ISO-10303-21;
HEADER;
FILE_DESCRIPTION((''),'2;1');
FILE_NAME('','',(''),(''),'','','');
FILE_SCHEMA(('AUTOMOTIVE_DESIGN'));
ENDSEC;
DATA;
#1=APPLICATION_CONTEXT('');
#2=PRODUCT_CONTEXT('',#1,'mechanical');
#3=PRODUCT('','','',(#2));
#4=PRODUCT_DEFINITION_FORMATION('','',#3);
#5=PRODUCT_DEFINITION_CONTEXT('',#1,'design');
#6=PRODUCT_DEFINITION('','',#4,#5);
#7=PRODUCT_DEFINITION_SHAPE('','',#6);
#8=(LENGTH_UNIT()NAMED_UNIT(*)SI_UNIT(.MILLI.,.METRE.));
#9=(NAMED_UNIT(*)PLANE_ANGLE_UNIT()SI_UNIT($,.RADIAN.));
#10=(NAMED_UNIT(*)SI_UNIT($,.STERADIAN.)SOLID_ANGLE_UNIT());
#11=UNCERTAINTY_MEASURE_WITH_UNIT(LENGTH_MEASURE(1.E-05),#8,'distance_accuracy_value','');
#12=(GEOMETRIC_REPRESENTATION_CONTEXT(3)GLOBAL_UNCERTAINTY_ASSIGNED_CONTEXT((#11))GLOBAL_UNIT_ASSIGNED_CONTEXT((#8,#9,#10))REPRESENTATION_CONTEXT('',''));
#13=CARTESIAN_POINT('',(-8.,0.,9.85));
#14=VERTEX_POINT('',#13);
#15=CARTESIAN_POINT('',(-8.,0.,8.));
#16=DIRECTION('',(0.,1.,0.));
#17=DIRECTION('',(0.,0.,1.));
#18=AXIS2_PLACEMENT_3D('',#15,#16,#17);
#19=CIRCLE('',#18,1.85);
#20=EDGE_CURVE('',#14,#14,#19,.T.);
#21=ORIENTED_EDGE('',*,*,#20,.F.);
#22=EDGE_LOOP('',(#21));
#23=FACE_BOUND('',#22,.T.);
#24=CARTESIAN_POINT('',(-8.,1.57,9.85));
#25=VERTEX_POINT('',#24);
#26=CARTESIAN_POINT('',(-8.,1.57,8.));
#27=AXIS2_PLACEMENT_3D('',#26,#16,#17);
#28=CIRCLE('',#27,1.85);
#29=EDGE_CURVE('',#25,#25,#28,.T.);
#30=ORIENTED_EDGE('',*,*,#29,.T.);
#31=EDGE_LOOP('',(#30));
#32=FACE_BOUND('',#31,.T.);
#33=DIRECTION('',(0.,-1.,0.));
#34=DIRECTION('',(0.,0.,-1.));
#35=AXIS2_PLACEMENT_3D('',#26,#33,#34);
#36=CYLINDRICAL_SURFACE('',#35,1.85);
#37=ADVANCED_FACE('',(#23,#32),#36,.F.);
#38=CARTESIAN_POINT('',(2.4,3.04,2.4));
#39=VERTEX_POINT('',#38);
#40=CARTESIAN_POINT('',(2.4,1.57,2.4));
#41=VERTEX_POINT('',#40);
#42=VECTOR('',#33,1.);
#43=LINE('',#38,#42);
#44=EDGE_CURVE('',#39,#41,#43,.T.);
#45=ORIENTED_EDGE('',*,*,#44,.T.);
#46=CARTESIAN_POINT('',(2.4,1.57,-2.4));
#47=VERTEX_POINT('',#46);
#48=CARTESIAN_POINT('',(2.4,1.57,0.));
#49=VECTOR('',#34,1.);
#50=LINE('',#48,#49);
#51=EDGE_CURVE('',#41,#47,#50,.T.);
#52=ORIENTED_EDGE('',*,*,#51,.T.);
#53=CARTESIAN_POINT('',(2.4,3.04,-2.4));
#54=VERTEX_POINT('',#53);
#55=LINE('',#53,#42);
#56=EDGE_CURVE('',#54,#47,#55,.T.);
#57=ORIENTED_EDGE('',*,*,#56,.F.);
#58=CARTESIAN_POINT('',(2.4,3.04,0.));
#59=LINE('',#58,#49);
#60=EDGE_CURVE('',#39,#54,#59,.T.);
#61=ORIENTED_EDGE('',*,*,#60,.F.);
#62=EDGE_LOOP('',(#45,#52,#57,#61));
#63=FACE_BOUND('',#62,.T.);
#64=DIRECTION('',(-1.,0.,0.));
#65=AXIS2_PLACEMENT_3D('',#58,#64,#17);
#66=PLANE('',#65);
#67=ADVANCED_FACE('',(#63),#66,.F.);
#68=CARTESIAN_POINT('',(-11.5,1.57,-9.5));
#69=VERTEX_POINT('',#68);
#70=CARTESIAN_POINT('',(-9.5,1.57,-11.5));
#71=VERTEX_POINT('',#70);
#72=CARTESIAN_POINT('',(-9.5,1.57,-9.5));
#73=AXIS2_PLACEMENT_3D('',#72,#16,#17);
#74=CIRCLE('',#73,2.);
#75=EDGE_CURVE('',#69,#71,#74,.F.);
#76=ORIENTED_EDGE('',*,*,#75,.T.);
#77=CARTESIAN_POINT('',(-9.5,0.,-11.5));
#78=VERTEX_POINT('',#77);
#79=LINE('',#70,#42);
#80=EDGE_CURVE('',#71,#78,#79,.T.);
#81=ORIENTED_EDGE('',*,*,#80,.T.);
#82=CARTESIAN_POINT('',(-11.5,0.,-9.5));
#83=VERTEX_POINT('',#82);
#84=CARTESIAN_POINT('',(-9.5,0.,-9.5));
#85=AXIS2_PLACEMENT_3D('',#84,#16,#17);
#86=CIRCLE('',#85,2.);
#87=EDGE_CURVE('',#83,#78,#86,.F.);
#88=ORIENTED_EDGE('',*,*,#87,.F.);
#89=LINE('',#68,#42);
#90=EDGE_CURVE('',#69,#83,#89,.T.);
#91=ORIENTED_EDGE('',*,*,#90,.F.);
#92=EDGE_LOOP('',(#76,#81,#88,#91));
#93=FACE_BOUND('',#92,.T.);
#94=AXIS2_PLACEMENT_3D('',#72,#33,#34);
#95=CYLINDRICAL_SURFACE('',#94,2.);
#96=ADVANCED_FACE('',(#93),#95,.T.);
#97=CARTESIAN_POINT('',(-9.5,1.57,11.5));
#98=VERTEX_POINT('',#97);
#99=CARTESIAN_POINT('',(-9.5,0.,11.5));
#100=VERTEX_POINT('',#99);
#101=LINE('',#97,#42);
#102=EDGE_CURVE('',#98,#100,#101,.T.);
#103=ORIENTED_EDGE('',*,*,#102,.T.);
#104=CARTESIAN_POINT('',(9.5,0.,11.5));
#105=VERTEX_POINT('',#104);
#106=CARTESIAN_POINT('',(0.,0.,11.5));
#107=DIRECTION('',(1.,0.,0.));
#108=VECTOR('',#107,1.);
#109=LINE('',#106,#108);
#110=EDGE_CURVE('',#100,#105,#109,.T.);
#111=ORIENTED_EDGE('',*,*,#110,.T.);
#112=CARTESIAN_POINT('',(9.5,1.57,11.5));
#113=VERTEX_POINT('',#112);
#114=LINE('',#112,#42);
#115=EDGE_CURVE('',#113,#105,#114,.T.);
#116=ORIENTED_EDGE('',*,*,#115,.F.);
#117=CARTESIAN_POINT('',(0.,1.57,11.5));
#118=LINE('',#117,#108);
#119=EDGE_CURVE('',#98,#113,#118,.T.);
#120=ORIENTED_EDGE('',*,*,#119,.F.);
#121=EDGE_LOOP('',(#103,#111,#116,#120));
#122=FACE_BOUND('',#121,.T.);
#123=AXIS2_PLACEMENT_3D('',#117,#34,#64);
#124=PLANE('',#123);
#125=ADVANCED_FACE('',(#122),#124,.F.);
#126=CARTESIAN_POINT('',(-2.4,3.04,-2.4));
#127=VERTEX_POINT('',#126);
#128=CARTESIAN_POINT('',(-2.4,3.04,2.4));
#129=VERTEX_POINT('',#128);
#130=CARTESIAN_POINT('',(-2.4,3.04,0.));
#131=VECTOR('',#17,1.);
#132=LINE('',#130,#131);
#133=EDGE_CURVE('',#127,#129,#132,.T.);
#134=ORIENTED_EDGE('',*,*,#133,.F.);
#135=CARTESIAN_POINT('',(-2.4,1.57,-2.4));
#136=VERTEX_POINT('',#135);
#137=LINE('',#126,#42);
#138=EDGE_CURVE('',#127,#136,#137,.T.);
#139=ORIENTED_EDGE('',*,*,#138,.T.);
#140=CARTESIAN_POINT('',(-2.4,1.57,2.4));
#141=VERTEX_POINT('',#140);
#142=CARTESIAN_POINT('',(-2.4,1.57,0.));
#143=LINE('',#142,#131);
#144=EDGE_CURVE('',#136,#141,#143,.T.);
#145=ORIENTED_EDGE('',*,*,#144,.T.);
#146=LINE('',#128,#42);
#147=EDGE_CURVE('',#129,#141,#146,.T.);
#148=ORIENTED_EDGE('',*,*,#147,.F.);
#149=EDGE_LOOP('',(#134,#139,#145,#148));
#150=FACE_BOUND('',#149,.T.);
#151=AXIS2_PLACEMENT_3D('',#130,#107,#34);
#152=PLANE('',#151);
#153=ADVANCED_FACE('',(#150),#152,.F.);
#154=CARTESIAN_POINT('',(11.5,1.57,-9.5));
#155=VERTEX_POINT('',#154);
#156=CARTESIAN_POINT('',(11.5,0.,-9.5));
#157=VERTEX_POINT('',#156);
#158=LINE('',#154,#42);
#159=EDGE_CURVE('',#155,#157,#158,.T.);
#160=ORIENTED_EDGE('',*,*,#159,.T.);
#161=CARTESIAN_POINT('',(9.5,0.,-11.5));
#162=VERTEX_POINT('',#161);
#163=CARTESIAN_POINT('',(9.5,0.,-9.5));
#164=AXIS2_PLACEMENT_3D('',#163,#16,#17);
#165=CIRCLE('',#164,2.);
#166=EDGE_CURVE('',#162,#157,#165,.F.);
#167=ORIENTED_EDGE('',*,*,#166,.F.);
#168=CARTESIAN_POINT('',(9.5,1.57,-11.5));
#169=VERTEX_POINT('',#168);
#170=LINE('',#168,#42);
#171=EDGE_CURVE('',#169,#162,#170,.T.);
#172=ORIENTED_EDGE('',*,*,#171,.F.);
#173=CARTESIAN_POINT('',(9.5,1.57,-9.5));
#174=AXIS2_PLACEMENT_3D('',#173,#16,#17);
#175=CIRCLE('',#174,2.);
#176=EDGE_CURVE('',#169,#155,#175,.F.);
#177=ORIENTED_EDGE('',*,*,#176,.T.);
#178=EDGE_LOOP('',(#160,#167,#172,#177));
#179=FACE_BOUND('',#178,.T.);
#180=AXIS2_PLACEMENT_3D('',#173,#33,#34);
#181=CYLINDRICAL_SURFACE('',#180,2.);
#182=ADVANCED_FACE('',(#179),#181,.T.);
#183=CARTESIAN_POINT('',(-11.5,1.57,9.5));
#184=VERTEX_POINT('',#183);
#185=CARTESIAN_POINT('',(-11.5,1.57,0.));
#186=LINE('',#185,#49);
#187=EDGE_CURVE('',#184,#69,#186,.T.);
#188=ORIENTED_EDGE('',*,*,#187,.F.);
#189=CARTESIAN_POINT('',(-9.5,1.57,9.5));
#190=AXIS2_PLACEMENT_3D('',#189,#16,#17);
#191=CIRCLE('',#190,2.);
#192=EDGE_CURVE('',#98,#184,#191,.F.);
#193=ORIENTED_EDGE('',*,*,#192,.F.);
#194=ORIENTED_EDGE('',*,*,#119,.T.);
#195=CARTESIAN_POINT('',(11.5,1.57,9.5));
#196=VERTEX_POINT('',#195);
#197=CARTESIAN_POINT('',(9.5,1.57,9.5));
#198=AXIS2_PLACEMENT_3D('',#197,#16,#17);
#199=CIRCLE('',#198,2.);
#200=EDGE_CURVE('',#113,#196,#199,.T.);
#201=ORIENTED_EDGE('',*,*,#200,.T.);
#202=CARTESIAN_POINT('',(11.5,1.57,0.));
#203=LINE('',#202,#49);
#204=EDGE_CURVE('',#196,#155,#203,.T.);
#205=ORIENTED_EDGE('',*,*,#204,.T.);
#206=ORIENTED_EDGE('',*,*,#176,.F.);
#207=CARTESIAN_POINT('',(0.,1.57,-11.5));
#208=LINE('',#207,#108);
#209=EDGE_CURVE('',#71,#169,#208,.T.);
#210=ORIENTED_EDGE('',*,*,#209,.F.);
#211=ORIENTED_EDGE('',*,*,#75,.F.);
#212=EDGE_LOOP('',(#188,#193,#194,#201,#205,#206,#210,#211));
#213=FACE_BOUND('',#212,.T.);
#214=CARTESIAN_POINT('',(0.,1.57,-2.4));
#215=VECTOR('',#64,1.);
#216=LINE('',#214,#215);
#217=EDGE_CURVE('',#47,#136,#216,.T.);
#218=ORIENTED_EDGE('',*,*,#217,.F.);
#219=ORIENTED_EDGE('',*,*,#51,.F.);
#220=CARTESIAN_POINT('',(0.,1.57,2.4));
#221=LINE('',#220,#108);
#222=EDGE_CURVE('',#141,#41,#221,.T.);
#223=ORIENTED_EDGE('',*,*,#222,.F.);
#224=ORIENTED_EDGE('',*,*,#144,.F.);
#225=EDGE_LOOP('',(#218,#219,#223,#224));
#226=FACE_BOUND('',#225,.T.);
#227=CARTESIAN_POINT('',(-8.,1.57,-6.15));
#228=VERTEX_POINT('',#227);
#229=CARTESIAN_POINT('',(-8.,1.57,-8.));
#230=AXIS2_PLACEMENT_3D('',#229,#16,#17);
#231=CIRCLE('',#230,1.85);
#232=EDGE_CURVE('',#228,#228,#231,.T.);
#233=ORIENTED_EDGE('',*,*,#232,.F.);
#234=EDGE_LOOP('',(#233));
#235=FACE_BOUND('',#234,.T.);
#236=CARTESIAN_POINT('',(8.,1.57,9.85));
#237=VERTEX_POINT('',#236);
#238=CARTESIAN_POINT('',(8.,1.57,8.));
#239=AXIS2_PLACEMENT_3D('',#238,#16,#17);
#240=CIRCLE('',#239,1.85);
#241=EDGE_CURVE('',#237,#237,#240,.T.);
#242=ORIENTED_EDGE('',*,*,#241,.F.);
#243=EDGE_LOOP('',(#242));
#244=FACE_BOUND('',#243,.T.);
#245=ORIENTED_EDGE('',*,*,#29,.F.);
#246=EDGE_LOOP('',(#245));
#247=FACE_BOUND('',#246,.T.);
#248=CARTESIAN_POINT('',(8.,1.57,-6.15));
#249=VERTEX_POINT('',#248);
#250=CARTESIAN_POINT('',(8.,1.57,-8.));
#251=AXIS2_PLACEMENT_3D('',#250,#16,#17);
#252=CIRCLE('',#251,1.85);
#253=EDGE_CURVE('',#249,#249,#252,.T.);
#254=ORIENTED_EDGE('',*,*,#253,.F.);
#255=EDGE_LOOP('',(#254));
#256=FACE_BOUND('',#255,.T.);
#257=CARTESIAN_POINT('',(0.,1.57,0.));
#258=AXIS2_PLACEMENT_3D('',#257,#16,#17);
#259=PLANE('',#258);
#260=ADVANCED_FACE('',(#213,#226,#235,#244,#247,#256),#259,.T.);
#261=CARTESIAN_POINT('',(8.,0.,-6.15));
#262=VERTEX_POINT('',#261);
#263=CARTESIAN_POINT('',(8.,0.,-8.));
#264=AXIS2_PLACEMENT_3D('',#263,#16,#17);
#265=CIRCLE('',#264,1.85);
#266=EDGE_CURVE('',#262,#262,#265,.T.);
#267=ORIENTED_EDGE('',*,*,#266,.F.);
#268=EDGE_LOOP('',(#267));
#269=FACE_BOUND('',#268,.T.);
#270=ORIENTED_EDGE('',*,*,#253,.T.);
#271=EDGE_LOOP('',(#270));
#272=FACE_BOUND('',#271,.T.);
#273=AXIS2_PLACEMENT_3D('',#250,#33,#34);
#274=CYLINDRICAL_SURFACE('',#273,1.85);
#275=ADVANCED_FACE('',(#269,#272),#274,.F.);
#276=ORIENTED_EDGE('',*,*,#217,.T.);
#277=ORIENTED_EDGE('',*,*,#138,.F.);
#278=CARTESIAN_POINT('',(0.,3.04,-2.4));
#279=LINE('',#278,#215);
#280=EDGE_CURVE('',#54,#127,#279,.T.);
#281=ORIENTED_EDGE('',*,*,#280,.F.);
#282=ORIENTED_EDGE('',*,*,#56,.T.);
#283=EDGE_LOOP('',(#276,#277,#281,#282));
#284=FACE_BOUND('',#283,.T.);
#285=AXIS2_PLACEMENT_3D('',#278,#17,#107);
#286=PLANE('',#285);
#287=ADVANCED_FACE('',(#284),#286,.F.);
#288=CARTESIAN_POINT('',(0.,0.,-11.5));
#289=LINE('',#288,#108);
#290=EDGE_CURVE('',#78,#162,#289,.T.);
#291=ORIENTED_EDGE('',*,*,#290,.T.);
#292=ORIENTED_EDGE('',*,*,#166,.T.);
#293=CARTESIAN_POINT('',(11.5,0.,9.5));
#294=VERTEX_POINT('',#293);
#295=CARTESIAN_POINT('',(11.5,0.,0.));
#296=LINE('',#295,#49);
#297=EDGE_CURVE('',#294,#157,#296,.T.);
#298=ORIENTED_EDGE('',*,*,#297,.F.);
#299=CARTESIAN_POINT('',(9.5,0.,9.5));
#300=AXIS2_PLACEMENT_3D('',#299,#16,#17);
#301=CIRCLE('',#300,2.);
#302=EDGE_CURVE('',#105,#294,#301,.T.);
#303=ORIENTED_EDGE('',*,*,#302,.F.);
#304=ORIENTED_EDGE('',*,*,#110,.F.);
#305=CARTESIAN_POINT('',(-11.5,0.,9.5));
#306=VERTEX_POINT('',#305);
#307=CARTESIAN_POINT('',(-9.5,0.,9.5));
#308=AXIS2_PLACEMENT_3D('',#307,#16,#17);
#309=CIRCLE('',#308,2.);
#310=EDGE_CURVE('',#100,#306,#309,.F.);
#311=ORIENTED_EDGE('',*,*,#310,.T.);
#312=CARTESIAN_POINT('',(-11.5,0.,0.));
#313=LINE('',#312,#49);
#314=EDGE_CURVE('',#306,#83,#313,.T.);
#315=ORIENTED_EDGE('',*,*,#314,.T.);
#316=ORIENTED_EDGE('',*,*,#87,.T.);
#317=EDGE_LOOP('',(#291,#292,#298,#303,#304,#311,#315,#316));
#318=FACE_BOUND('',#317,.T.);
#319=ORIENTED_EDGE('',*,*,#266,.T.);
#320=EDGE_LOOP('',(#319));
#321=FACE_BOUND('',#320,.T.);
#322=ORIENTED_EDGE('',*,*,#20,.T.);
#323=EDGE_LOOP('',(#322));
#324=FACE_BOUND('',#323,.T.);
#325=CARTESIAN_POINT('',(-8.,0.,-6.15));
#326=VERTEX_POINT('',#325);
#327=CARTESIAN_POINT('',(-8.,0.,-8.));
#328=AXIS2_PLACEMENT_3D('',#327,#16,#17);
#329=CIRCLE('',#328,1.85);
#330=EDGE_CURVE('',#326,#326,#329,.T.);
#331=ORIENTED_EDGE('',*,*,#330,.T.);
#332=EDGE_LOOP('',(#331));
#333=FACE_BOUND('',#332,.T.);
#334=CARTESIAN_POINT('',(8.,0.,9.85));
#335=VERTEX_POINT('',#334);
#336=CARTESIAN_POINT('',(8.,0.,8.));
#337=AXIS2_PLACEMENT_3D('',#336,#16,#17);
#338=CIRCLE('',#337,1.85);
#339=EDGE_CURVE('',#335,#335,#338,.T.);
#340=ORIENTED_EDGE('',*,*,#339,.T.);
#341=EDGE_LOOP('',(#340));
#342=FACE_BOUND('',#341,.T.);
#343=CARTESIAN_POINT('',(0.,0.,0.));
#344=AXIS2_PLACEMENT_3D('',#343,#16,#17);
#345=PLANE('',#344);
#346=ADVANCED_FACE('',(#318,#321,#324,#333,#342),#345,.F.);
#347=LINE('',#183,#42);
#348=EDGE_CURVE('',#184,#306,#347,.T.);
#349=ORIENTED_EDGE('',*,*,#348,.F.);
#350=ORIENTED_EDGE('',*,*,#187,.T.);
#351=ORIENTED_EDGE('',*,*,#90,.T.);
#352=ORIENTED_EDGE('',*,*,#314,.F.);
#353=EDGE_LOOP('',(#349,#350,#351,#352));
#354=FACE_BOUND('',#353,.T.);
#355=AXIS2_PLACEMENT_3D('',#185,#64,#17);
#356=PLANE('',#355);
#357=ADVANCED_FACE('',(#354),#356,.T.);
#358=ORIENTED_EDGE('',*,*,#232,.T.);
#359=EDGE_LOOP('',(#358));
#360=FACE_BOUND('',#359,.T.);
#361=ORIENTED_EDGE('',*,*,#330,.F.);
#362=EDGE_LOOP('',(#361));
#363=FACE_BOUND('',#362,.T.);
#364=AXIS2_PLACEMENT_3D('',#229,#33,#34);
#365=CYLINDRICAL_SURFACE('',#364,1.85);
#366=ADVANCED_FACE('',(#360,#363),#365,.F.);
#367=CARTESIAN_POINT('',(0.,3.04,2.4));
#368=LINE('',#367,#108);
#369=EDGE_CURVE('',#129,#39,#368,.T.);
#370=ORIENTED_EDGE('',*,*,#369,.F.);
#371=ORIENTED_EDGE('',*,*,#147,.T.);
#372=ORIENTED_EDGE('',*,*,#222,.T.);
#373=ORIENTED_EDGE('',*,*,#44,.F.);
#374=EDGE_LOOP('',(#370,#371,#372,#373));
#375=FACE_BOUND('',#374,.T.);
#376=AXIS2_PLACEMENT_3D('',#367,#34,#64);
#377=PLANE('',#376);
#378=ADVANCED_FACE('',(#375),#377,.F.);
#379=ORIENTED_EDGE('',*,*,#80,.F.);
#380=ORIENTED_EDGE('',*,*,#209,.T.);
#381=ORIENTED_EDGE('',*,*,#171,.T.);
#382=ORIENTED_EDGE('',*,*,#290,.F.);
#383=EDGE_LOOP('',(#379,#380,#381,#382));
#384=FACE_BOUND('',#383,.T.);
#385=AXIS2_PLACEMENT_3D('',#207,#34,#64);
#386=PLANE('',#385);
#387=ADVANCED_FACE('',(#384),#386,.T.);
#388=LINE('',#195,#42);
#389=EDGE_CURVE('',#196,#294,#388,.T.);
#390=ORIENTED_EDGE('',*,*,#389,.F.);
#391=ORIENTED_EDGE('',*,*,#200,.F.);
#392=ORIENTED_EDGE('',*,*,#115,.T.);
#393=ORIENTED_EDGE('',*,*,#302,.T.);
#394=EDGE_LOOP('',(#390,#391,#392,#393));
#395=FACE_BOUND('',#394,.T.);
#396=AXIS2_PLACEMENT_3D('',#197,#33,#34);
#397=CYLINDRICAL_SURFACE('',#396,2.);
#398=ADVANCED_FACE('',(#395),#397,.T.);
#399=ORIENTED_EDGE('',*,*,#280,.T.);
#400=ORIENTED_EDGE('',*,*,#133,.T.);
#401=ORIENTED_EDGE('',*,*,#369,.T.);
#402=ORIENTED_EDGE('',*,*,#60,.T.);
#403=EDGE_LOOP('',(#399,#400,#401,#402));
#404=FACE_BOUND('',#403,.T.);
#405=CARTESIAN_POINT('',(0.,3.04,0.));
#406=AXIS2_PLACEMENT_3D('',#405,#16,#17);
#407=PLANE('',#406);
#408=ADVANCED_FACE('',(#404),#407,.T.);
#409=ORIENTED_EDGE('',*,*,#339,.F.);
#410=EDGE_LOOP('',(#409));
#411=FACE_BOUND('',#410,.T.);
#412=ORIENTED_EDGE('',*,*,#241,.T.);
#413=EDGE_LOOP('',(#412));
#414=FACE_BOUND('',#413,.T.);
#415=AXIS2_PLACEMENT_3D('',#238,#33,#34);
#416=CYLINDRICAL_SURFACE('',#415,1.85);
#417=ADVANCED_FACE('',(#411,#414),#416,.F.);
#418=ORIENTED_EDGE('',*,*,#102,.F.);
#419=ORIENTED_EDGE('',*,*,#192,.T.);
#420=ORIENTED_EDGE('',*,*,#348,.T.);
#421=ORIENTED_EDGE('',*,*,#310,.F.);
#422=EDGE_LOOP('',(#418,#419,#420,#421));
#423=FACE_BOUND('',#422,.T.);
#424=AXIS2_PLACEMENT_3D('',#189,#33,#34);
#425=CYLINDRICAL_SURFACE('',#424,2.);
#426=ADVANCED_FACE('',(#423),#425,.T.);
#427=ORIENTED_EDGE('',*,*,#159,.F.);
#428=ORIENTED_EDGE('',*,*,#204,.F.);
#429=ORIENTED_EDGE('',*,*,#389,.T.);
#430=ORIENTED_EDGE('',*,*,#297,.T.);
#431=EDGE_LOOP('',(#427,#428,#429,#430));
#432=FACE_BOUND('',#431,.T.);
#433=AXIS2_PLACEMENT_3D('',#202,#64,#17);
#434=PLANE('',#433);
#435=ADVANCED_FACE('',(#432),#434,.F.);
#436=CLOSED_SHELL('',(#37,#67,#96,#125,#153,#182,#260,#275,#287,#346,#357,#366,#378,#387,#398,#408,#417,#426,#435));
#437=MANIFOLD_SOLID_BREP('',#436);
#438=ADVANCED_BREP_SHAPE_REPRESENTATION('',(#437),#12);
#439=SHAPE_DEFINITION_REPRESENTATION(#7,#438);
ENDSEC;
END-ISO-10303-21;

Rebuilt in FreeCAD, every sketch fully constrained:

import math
import FreeCAD as App
import Part
import Sketcher

V = App.Vector


def add_polygon(sketch, points):
    """Adds a closed chain of lines whose ends are joined by coincident constraints."""
    first, n = sketch.GeometryCount, len(points)
    for a, b in zip(points, points[1:] + points[:1]):
        sketch.addGeometry(Part.LineSegment(App.Vector(*a, 0), App.Vector(*b, 0)), False)
    for i in range(n):
        sketch.addConstraint(Sketcher.Constraint("Coincident", first + i, 2, first + (i + 1) % n, 1))

doc = App.newDocument("Part")
body = doc.addObject("PartDesign::Body", "Body")

sketch1 = body.newObject("Sketcher::SketchObject", "Sketch")
sketch1.AttachmentSupport = (doc.getObject("XZ_Plane"), [""])
sketch1.MapMode = "FlatFace"
sketch1.addGeometry([
    Part.ArcOfCircle(Part.Circle(V(-9.5, -9.5, 0), V(0, 0, 1), 2), math.radians(-180), math.radians(-90)),
    Part.LineSegment(V(-11.5, -9.5, 0), V(-11.5, 9.5, 0)),
    Part.ArcOfCircle(Part.Circle(V(-9.5, 9.5, 0), V(0, 0, 1), 2), math.radians(90), math.radians(180)),
    Part.LineSegment(V(-9.5, 11.5, 0), V(9.5, 11.5, 0)),
    Part.ArcOfCircle(Part.Circle(V(9.5, 9.5, 0), V(0, 0, 1), 2), math.radians(0), math.radians(90)),
    Part.LineSegment(V(11.5, 9.5, 0), V(11.5, -9.5, 0)),
    Part.ArcOfCircle(Part.Circle(V(9.5, -9.5, 0), V(0, 0, 1), 2), math.radians(-90), math.radians(0)),
    Part.LineSegment(V(9.5, -11.5, 0), V(-9.5, -11.5, 0)),
    Part.Circle(V(8, 8, 0), V(0, 0, 1), 1.9),
    Part.Circle(V(-8, 8, 0), V(0, 0, 1), 1.9),
    Part.Circle(V(8, -8, 0), V(0, 0, 1), 1.9),
    Part.Circle(V(-8, -8, 0), V(0, 0, 1), 1.9),
], False)
sketch1.addConstraint([
    Sketcher.Constraint("Tangent", 0, 1, 1, 1),
    Sketcher.Constraint("Tangent", 1, 2, 2, 2),
    Sketcher.Constraint("Tangent", 2, 1, 3, 1),
    Sketcher.Constraint("Tangent", 3, 2, 4, 2),
    Sketcher.Constraint("Tangent", 4, 1, 5, 1),
    Sketcher.Constraint("Tangent", 5, 2, 6, 2),
    Sketcher.Constraint("Tangent", 6, 1, 7, 1),
    Sketcher.Constraint("Tangent", 7, 2, 0, 2),
    Sketcher.Constraint("Vertical", 1),
    Sketcher.Constraint("Horizontal", 3),
    Sketcher.Constraint("Vertical", 5),
    Sketcher.Constraint("Horizontal", 7),
    Sketcher.Constraint("Equal", 0, 2),
    Sketcher.Constraint("Equal", 2, 4),
    Sketcher.Constraint("Equal", 4, 6),
    Sketcher.Constraint("Equal", 8, 9),
    Sketcher.Constraint("Equal", 9, 10),
    Sketcher.Constraint("Equal", 10, 11),
    Sketcher.Constraint("Symmetric", 0, 3, 4, 3, -1, 1),
    Sketcher.Constraint("Symmetric", 9, 3, 10, 3, -1, 1),
    Sketcher.Constraint("Symmetric", 8, 3, 11, 3, -1, 1),
    Sketcher.Constraint("Symmetric", 8, 3, 9, 3, -2),
    Sketcher.Constraint("Equal", 7, 1),
    Sketcher.Constraint("Radius", 0, 2.0),
    Sketcher.Constraint("Diameter", 8, 3.7),
    Sketcher.Constraint("DistanceX", 3, 1, 3, 2, 19.0),
    Sketcher.Constraint("DistanceX", -1, 1, 8, 3, 8.0),
    Sketcher.Constraint("DistanceY", -1, 1, 8, 3, 8.0),
])
pad1 = body.newObject("PartDesign::Pad", "Pad")
pad1.Profile = sketch1
pad1.Length = 1.57
pad1.Reversed = True

sketch2 = body.newObject("Sketcher::SketchObject", "Sketch001")
sketch2.AttachmentSupport = (doc.getObject("XZ_Plane"), [""])
sketch2.MapMode = "FlatFace"
sketch2.AttachmentOffset = App.Placement(V(0, 0, -1.57), App.Rotation())
add_polygon(sketch2, [(-2.4, -2.4), (-2.4, 2.4), (2.4, 2.4), (2.4, -2.4)])
sketch2.addConstraint([
    Sketcher.Constraint("Vertical", 0),
    Sketcher.Constraint("Horizontal", 1),
    Sketcher.Constraint("Vertical", 2),
    Sketcher.Constraint("Horizontal", 3),
    Sketcher.Constraint("Symmetric", 0, 2, 2, 2, -1, 1),
    Sketcher.Constraint("Equal", 3, 0),
    Sketcher.Constraint("DistanceX", 1, 1, 1, 2, 4.8),
])
pad2 = body.newObject("PartDesign::Pad", "Pad001")
pad2.Profile = sketch2
pad2.Length = 1.47
pad2.Reversed = True

doc.recompute()
